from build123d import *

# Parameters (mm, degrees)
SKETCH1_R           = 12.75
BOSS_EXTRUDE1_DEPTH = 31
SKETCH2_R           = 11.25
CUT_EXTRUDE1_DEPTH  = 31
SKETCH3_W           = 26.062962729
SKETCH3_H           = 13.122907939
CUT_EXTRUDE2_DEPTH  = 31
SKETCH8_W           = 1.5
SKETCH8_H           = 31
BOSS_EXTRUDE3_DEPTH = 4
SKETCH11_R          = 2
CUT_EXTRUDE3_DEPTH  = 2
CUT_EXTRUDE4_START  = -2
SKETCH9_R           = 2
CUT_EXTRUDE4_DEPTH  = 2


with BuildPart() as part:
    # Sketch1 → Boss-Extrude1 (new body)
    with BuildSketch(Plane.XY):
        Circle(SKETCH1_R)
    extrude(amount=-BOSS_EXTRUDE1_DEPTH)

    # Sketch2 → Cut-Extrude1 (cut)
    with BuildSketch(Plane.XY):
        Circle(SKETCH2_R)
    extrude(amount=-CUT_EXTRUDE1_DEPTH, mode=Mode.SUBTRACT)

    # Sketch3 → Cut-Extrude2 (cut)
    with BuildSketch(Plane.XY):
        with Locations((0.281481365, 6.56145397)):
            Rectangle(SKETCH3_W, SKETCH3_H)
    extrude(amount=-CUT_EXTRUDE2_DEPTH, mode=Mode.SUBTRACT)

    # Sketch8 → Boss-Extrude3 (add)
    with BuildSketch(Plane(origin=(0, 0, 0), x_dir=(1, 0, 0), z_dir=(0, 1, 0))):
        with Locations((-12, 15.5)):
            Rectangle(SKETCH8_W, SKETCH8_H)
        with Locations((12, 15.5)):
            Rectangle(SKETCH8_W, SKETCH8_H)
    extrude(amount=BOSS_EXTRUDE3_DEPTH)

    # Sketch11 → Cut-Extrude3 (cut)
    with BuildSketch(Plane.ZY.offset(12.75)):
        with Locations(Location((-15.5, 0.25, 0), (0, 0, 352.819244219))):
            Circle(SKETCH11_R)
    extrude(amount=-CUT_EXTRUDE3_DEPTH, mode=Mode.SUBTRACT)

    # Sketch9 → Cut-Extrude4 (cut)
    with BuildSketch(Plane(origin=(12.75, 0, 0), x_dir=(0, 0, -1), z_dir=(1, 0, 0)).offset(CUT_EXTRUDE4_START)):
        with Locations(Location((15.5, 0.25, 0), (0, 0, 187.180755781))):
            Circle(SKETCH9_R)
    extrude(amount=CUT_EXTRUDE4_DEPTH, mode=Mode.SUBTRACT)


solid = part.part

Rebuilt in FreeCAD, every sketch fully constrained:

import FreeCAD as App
import Part
import Sketcher


def add_polygon(sketch, points):
    """Adds a closed chain of lines whose ends are joined by coincident constraints."""
    first, n = sketch.GeometryCount, len(points)
    for a, b in zip(points, points[1:] + points[:1]):
        sketch.addGeometry(Part.LineSegment(App.Vector(*a, 0), App.Vector(*b, 0)), False)
    for i in range(n):
        sketch.addConstraint(Sketcher.Constraint("Coincident", first + i, 2, first + (i + 1) % n, 1))

doc = App.newDocument("Part")
params = doc.addObject("Spreadsheet::Sheet", "Params")
for row, (alias, value) in enumerate([
    ("sketch1_diameter", "25.5 mm"),
    ("pad1_length", "31 mm"),
    ("sketch2_diameter", "22.5 mm"),
    ("pocket1_length", "31 mm"),
    ("pocket2_length", "31 mm"),
    ("sketch4_height", "31 mm"),
    ("sketch4_width", "1.5 mm"),
    ("pad2_length", "4 mm"),
    ("sketch5_diameter", "4 mm"),
    ("pocket3_length", "2 mm"),
    ("sketch6_diameter", "4 mm"),
    ("pocket4_length", "2 mm"),
], start=1):
    params.set(f"A{row}", alias)
    params.set(f"B{row}", "=" + value)
    params.setAlias(f"B{row}", alias)

body = doc.addObject("PartDesign::Body", "Body")

# Sketch on XY plane
sketch1 = body.newObject("Sketcher::SketchObject", "Sketch")
sketch1.AttachmentSupport = (doc.getObject("XY_Plane"), [""])
sketch1.MapMode = "FlatFace"
sketch1.addGeometry(Part.Circle(App.Vector(0, 0, 0), App.Vector(0, 0, 1), 13), False)
sketch1.addConstraint(Sketcher.Constraint("Coincident", 0, 3, -1, 1))
sketch1.addConstraint(Sketcher.Constraint("Diameter", 0, 25.5))
sketch1.setExpression("Constraints[1]", "Params.sketch1_diameter")
pad1 = body.newObject("PartDesign::Pad", "Pad")
pad1.Profile = sketch1
pad1.setExpression("Length", "Params.pad1_length")
pad1.Reversed = True

# Sketch on XY plane
sketch2 = body.newObject("Sketcher::SketchObject", "Sketch001")
sketch2.AttachmentSupport = (doc.getObject("XY_Plane"), [""])
sketch2.MapMode = "FlatFace"
sketch2.addGeometry(Part.Circle(App.Vector(0, 0, 0), App.Vector(0, 0, 1), 11), False)
sketch2.addConstraint(Sketcher.Constraint("Coincident", 0, 3, -1, 1))
sketch2.addConstraint(Sketcher.Constraint("Diameter", 0, 22.5))
sketch2.setExpression("Constraints[1]", "Params.sketch2_diameter")
pocket1 = body.newObject("PartDesign::Pocket", "Pocket")
pocket1.Profile = sketch2
pocket1.setExpression("Length", "Params.pocket1_length")

# Sketch on XY plane
sketch3 = body.newObject("Sketcher::SketchObject", "Sketch002")
sketch3.AttachmentSupport = (doc.getObject("XY_Plane"), [""])
sketch3.MapMode = "FlatFace"
add_polygon(sketch3, [(-13, 13), (-13, 0), (13, 0), (13, 13)])  # lines 0-3
sketch3.addConstraint(Sketcher.Constraint("Vertical", 0))
sketch3.addConstraint(Sketcher.Constraint("Horizontal", 1))
sketch3.addConstraint(Sketcher.Constraint("Vertical", 2))
sketch3.addConstraint(Sketcher.Constraint("Horizontal", 3))
sketch3.addConstraint(Sketcher.Constraint("PointOnObject", 0, 2, -1))
sketch3.addConstraint(Sketcher.Constraint("DistanceX", 0, 2, -1, 1, 12.75))
sketch3.addConstraint(Sketcher.Constraint("DistanceX", 1, 1, 1, 2, 26.062963))
sketch3.addConstraint(Sketcher.Constraint("DistanceY", 0, 2, 0, 1, 13.122908))
pocket2 = body.newObject("PartDesign::Pocket", "Pocket001")
pocket2.Profile = sketch3
pocket2.setExpression("Length", "Params.pocket2_length")

# Sketch on XZ plane
sketch4 = body.newObject("Sketcher::SketchObject", "Sketch003")
sketch4.AttachmentSupport = (doc.getObject("XZ_Plane"), [""])
sketch4.MapMode = "FlatFace"
add_polygon(sketch4, [(-12.8, -31), (-12.8, 0), (-11.2, 0), (-11.2, -31)])  # lines 0-3
add_polygon(sketch4, [(11.2, -31), (11.2, 0), (12.8, 0), (12.8, -31)])  # lines 4-7
sketch4.addConstraint(Sketcher.Constraint("Vertical", 0))
sketch4.addConstraint(Sketcher.Constraint("Horizontal", 1))
sketch4.addConstraint(Sketcher.Constraint("Vertical", 2))
sketch4.addConstraint(Sketcher.Constraint("Horizontal", 3))
sketch4.addConstraint(Sketcher.Constraint("Vertical", 4))
sketch4.addConstraint(Sketcher.Constraint("Horizontal", 5))
sketch4.addConstraint(Sketcher.Constraint("Vertical", 6))
sketch4.addConstraint(Sketcher.Constraint("Horizontal", 7))
sketch4.addConstraint(Sketcher.Constraint("Symmetric", 1, 2, 4, 2, -1, 1))
sketch4.addConstraint(Sketcher.Constraint("Symmetric", 0, 2, 5, 2, -2))
sketch4.addConstraint(Sketcher.Constraint("Horizontal", 3, 2, 6, 2))
sketch4.addConstraint(Sketcher.Constraint("DistanceY", 0, 1, 0, 2, 31.0))
sketch4.addConstraint(Sketcher.Constraint("DistanceX", 1, 1, 1, 2, 1.5))
sketch4.addConstraint(Sketcher.Constraint("DistanceX", 0, 2, 4, 2, 24.0))
sketch4.setExpression("Constraints[19]", "Params.sketch4_height")
sketch4.setExpression("Constraints[20]", "Params.sketch4_width")
pad2 = body.newObject("PartDesign::Pad", "Pad001")
pad2.Profile = sketch4
pad2.setExpression("Length", "Params.pad2_length")
pad2.Reversed = True

# Sketch on YZ plane
sketch5 = body.newObject("Sketcher::SketchObject", "Sketch004")
sketch5.AttachmentSupport = (doc.getObject("YZ_Plane"), [""])
sketch5.MapMode = "FlatFace"
sketch5.AttachmentOffset = App.Placement(App.Vector(0, 0, -12.75), App.Rotation())
sketch5.addGeometry(Part.Circle(App.Vector(0.2, -15.5, 0), App.Vector(0, 0, 1), 2), False)
sketch5.addConstraint(Sketcher.Constraint("Diameter", 0, 4.0))
sketch5.addConstraint(Sketcher.Constraint("DistanceY", 0, 3, -1, 1, 15.5))
sketch5.addConstraint(Sketcher.Constraint("DistanceX", -1, 1, 0, 3, 0.25))
sketch5.setExpression("Constraints[0]", "Params.sketch5_diameter")
pocket3 = body.newObject("PartDesign::Pocket", "Pocket002")
pocket3.Profile = sketch5
pocket3.setExpression("Length", "Params.pocket3_length")
pocket3.Reversed = True

# Sketch on YZ plane
sketch6 = body.newObject("Sketcher::SketchObject", "Sketch005")
sketch6.AttachmentSupport = (doc.getObject("YZ_Plane"), [""])
sketch6.MapMode = "FlatFace"
sketch6.AttachmentOffset = App.Placement(App.Vector(0, 0, 10.75), App.Rotation())
sketch6.addGeometry(Part.Circle(App.Vector(0.2, -15.5, 0), App.Vector(0, 0, 1), 2), False)
sketch6.addConstraint(Sketcher.Constraint("Diameter", 0, 4.0))
sketch6.addConstraint(Sketcher.Constraint("DistanceY", 0, 3, -1, 1, 15.5))
sketch6.addConstraint(Sketcher.Constraint("DistanceX", -1, 1, 0, 3, 0.25))
sketch6.setExpression("Constraints[0]", "Params.sketch6_diameter")
pocket4 = body.newObject("PartDesign::Pocket", "Pocket003")
pocket4.Profile = sketch6
pocket4.setExpression("Length", "Params.pocket4_length")
pocket4.Reversed = True

doc.recompute()
